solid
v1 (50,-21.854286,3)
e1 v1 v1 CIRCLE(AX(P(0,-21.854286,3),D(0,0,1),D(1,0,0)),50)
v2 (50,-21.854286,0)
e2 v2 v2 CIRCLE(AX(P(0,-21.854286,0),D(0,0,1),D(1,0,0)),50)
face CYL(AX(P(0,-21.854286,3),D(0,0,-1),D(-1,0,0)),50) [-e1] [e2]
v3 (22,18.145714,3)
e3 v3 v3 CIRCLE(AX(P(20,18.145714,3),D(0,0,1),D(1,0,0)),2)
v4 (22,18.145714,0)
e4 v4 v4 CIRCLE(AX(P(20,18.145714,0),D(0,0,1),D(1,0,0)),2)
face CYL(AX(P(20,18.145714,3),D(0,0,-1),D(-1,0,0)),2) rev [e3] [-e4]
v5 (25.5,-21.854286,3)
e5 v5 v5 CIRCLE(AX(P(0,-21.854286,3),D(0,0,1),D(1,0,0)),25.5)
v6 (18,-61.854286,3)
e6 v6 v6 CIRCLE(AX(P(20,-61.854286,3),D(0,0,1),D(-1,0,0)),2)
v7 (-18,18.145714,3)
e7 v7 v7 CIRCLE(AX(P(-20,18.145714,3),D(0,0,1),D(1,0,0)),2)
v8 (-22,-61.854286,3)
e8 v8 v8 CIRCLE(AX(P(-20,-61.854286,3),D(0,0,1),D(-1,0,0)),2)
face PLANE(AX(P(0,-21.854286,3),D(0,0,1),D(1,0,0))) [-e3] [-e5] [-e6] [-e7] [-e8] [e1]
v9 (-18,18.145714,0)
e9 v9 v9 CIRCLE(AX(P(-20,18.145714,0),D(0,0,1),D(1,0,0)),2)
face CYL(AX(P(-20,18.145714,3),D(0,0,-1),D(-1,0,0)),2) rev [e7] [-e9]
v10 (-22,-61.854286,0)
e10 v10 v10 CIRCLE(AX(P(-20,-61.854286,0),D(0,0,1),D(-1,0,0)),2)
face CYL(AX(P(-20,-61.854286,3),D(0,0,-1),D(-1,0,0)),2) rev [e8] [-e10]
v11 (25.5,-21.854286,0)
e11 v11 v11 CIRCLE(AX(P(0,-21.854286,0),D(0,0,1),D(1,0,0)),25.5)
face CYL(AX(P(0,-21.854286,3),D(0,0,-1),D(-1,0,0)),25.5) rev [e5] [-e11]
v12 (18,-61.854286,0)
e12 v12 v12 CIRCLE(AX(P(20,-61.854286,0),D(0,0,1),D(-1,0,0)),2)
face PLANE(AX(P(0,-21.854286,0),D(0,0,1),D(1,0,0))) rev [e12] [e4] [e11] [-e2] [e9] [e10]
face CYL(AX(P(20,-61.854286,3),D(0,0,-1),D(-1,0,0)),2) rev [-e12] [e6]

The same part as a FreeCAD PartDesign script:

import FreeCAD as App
import Part
import Sketcher
Q = App.Units.Quantity

doc = App.newDocument("Part")
params = doc.addObject("Spreadsheet::Sheet", "Params")
for row, (alias, value) in enumerate([
    ("sketch1_diameter", "100 mm"),
    ("sketch1_diameter2", "4 mm"),
    ("sketch1_diameter3", "51 mm"),
    ("pad1_length", "3 mm"),
], start=1):
    params.set(f"A{row}", alias)
    params.set(f"B{row}", "=" + value)
    params.setAlias(f"B{row}", alias)

body = doc.addObject("PartDesign::Body", "Body")

sketch1 = body.newObject("Sketcher::SketchObject", "Sketch")
sketch1.AttachmentSupport = (doc.getObject("XY_Plane"), [""])
sketch1.MapMode = "FlatFace"
sketch1.addGeometry(Part.Circle(App.Vector(0, -21.9, 0), App.Vector(0, 0, 1), 50), False)
sketch1.addGeometry(Part.Circle(App.Vector(-20, -61.9, 0), App.Vector(0, 0, 1), 2), False)
sketch1.addGeometry(Part.Circle(App.Vector(20, -61.9, 0), App.Vector(0, 0, 1), 2), False)
sketch1.addGeometry(Part.Circle(App.Vector(-20, 18.1, 0), App.Vector(0, 0, 1), 2), False)
sketch1.addGeometry(Part.Circle(App.Vector(0, -21.9, 0), App.Vector(0, 0, 1), 25.5), False)
sketch1.addGeometry(Part.Circle(App.Vector(20, 18.1, 0), App.Vector(0, 0, 1), 2), False)
sketch1.addConstraint(Sketcher.Constraint("Coincident", 4, 3, 0, 3))
sketch1.addConstraint(Sketcher.Constraint("Equal", 1, 2))
sketch1.addConstraint(Sketcher.Constraint("Equal", 2, 3))
sketch1.addConstraint(Sketcher.Constraint("Equal", 3, 5))
sketch1.addConstraint(Sketcher.Constraint("Symmetric", 1, 3, 2, 3, -2))
sketch1.addConstraint(Sketcher.Constraint("Symmetric", 3, 3, 5, 3, -2))
sketch1.addConstraint(Sketcher.Constraint("PointOnObject", 0, 3, -2))
sketch1.addConstraint(Sketcher.Constraint("Vertical", 1, 3, 3, 3))
sketch1.addConstraint(Sketcher.Constraint("Diameter", 0, Q("100 mm")))
sketch1.addConstraint(Sketcher.Constraint("Diameter", 1, Q("4 mm")))
sketch1.addConstraint(Sketcher.Constraint("Diameter", 4, Q("51 mm")))
sketch1.addConstraint(Sketcher.Constraint("DistanceX", 1, 3, -1, 1, Q("20 mm")))
sketch1.addConstraint(Sketcher.Constraint("DistanceY", 1, 3, 0, 3, Q("40 mm")))
sketch1.addConstraint(Sketcher.Constraint("DistanceY", 0, 3, 3, 3, Q("40 mm")))
sketch1.addConstraint(Sketcher.Constraint("DistanceY", 0, 3, -1, 1, Q("21.854286 mm")))
sketch1.setExpression("Constraints[8]", "Params.sketch1_diameter")
sketch1.setExpression("Constraints[9]", "Params.sketch1_diameter2")
sketch1.setExpression("Constraints[10]", "Params.sketch1_diameter3")
pad1 = body.newObject("PartDesign::Pad", "Pad")
pad1.Profile = sketch1
pad1.setExpression("Length", "Params.pad1_length")

doc.recompute()
